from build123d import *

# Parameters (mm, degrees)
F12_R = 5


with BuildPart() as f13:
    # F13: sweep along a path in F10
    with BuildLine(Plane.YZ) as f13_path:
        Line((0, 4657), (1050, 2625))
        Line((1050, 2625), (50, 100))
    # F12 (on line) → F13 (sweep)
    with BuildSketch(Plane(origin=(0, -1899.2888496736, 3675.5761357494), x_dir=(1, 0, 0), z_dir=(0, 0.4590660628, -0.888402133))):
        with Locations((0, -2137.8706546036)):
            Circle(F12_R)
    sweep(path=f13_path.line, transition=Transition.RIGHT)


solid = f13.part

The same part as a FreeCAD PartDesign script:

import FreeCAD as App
import Part
import Sketcher

V = App.Vector
Q = App.Units.Quantity

doc = App.newDocument("Part")
body = doc.addObject("PartDesign::Body", "Body")

# Sketch on an angled plane
sketch1 = doc.addObject("Sketcher::SketchObject", "Sketch")
body.addObject(sketch1)
sketch1.Placement = App.Placement(V(0, -1899.28885, 3675.576136), App.Rotation(V(1, 0, 0), V(0, -0.888402133, -0.459066063), V(0, 0.459066063, -0.888402133), "ZXY"))
sketch1.addGeometry(Part.Circle(V(0, -2138, 0), V(0, 0, 1), 5), False)
sketch1.addConstraint([
    Sketcher.Constraint("PointOnObject", 0, 3, -2),
    Sketcher.Constraint("Diameter", 0, Q("10 mm")),
    Sketcher.Constraint("DistanceY", 0, 3, -1, 1, Q("2137.870655 mm")),
])

# Sketch on YZ plane
sketch2 = doc.addObject("Sketcher::SketchObject", "Sketch001")
body.addObject(sketch2)
sketch2.AttachmentSupport = (doc.YZ_Plane, [""])
sketch2.MapMode = "FlatFace"
sketch2.addGeometry([
    Part.LineSegment(V(0, 4657, 0), V(1050, 2625, 0)),
    Part.LineSegment(V(1050, 2625, 0), V(50, 100, 0)),
], False)
sketch2.addConstraint([
    Sketcher.Constraint("Coincident", 0, 2, 1, 1),
    Sketcher.Constraint("PointOnObject", 0, 1, -2),
    Sketcher.Constraint("DistanceY", -1, 1, 0, 1, Q("4657 mm")),
    Sketcher.Constraint("DistanceX", -1, 1, 0, 2, Q("1050 mm")),
    Sketcher.Constraint("DistanceY", -1, 1, 0, 2, Q("2625 mm")),
    Sketcher.Constraint("DistanceX", -1, 1, 1, 2, Q("50 mm")),
    Sketcher.Constraint("DistanceY", -1, 1, 1, 2, Q("100 mm")),
])
doc.recompute()

additivepipe = doc.addObject("PartDesign::AdditivePipe", "AdditivePipe")
body.addObject(additivepipe)
additivepipe.Profile = sketch1
additivepipe.Spine = (sketch2, ["Edge1", "Edge2"])
additivepipe.Transition = "Right corner"

doc.recompute()
